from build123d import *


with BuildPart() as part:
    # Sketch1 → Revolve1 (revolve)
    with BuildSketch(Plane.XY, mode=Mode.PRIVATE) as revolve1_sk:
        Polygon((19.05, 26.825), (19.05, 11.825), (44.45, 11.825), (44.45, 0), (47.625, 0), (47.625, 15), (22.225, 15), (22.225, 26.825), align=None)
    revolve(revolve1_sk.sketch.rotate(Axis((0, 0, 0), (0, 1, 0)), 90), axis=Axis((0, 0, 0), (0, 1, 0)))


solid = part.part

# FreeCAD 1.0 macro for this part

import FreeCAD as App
import Part
import Sketcher
Q = App.Units.Quantity

doc = App.newDocument("Part")
body = doc.addObject("PartDesign::Body", "Body")

sketch1 = body.newObject("Sketcher::SketchObject", "Sketch")
sketch1.AttachmentSupport = (doc.getObject("XY_Plane"), [""])
sketch1.MapMode = "FlatFace"
sketch1.addGeometry([
    Part.LineSegment(App.Vector(19.1, 26.8, 0), App.Vector(19.1, 11.8, 0)),
    Part.LineSegment(App.Vector(19.1, 11.8, 0), App.Vector(44.5, 11.8, 0)),
    Part.LineSegment(App.Vector(44.5, 11.8, 0), App.Vector(44.5, 0, 0)),
    Part.LineSegment(App.Vector(44.5, 0, 0), App.Vector(47.6, 0, 0)),
    Part.LineSegment(App.Vector(47.6, 0, 0), App.Vector(47.6, 15, 0)),
    Part.LineSegment(App.Vector(47.6, 15, 0), App.Vector(22.2, 15, 0)),
    Part.LineSegment(App.Vector(22.2, 15, 0), App.Vector(22.2, 26.8, 0)),
    Part.LineSegment(App.Vector(22.2, 26.8, 0), App.Vector(19.1, 26.8, 0)),
], False)
sketch1.addConstraint([
    Sketcher.Constraint("Coincident", 0, 2, 1, 1),
    Sketcher.Constraint("Coincident", 1, 2, 2, 1),
    Sketcher.Constraint("Coincident", 2, 2, 3, 1),
    Sketcher.Constraint("Coincident", 3, 2, 4, 1),
    Sketcher.Constraint("Coincident", 4, 2, 5, 1),
    Sketcher.Constraint("Coincident", 5, 2, 6, 1),
    Sketcher.Constraint("Coincident", 6, 2, 7, 1),
    Sketcher.Constraint("Coincident", 7, 2, 0, 1),
    Sketcher.Constraint("Vertical", 0),
    Sketcher.Constraint("Horizontal", 1),
    Sketcher.Constraint("Vertical", 2),
    Sketcher.Constraint("Horizontal", 3),
    Sketcher.Constraint("Vertical", 4),
    Sketcher.Constraint("Horizontal", 5),
    Sketcher.Constraint("Vertical", 6),
    Sketcher.Constraint("Horizontal", 7),
    Sketcher.Constraint("PointOnObject", 2, 2, -1),
    Sketcher.Constraint("Equal", 1, 5),
    Sketcher.Constraint("Equal", 0, 4),
    Sketcher.Constraint("DistanceX", 1, 1, 1, 2, Q("1 in")),
    Sketcher.Constraint("DistanceX", 3, 1, 3, 2, Q("0.125 in")),
    Sketcher.Constraint("DistanceX", -1, 1, 0, 2, Q("0.75 in")),
    Sketcher.Constraint("DistanceY", 1, 2, 4, 2, Q("0.125 in")),
    Sketcher.Constraint("DistanceY", 0, 2, 0, 1, Q("15 mm")),
])
revolution = body.newObject("PartDesign::Revolution", "Revolution")
revolution.Profile = sketch1
revolution.ReferenceAxis = (sketch1, ["V_Axis"])
revolution.Angle = 360

doc.recompute()
